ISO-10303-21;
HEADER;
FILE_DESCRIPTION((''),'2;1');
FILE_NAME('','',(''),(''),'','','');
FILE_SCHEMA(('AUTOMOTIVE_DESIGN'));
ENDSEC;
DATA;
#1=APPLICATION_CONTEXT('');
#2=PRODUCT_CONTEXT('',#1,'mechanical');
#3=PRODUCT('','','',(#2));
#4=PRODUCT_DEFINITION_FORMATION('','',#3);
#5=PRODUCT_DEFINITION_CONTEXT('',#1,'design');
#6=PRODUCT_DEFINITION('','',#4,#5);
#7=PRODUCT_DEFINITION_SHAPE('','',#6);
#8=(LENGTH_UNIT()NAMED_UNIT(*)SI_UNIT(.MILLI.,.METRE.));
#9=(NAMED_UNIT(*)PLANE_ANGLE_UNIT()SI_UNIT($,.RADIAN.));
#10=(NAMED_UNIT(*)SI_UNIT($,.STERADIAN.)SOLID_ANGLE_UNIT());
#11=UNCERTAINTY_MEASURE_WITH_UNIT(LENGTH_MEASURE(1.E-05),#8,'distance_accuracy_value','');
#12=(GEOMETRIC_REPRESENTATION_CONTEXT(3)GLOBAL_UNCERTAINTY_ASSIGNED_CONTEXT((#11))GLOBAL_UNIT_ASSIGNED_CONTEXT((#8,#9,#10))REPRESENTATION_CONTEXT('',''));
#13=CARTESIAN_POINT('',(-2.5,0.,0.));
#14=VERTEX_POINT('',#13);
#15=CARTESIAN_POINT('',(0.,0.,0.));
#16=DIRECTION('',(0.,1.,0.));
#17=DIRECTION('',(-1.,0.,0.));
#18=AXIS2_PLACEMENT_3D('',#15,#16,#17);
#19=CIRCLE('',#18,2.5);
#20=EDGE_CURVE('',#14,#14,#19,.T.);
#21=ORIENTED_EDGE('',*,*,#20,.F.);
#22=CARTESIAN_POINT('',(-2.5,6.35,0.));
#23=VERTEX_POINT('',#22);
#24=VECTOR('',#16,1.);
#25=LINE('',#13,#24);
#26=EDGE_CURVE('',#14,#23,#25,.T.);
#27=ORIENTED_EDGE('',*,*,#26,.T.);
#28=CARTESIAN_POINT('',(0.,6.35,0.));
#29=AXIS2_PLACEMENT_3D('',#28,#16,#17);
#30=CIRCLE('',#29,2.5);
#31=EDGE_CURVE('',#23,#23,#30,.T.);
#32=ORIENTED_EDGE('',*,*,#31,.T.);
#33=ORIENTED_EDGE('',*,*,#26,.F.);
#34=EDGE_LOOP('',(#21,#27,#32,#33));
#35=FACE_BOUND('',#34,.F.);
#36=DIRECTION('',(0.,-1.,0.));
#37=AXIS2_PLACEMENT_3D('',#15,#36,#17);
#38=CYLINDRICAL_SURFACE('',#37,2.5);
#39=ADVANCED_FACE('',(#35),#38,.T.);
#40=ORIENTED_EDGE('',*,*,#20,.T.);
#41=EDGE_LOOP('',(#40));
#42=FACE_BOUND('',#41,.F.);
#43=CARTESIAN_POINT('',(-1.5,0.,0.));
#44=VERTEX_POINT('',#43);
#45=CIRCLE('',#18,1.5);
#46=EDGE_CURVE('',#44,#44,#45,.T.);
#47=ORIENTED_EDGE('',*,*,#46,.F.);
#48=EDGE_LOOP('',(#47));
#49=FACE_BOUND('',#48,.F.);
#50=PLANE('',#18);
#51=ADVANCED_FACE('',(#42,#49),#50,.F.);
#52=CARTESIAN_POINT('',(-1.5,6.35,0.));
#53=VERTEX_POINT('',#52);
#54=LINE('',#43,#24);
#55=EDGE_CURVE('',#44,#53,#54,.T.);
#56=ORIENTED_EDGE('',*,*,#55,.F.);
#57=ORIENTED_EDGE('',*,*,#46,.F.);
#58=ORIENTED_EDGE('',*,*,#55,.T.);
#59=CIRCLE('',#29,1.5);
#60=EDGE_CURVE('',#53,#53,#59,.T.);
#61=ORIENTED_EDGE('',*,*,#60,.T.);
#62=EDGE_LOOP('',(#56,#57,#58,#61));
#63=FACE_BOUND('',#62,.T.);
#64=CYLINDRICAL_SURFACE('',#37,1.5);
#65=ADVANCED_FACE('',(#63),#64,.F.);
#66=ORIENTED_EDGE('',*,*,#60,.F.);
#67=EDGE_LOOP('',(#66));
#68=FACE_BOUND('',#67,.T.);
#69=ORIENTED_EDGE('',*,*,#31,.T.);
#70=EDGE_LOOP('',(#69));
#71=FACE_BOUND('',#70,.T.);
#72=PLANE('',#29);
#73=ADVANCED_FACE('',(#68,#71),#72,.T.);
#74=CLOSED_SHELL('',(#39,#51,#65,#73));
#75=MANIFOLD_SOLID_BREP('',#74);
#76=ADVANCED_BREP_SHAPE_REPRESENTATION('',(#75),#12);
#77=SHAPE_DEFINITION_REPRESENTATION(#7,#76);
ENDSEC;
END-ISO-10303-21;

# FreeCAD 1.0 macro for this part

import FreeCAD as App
import Part
import Sketcher
Q = App.Units.Quantity

doc = App.newDocument("Part")
body = doc.addObject("PartDesign::Body", "Body")

# Sketch on XZ plane
sketch1 = doc.addObject("Sketcher::SketchObject", "Sketch")
body.addObject(sketch1)
sketch1.AttachmentSupport = (doc.XZ_Plane, [""])
sketch1.MapMode = "FlatFace"
sketch1.addGeometry([
    Part.Circle(App.Vector(0, 0, 0), App.Vector(0, 0, 1), 2.5),
    Part.Circle(App.Vector(0, 0, 0), App.Vector(0, 0, 1), 1.5),
], False)
sketch1.addConstraint([
    Sketcher.Constraint("Coincident", 0, 3, -1, 1),
    Sketcher.Constraint("Coincident", 1, 3, -1, 1),
    Sketcher.Constraint("Diameter", 0, Q("5 mm")),
    Sketcher.Constraint("Diameter", 1, Q("3 mm")),
])
pad1 = doc.addObject("PartDesign::Pad", "Pad")
body.addObject(pad1)
pad1.Profile = sketch1
pad1.Length = 6.35
pad1.Reversed = True

doc.recompute()
